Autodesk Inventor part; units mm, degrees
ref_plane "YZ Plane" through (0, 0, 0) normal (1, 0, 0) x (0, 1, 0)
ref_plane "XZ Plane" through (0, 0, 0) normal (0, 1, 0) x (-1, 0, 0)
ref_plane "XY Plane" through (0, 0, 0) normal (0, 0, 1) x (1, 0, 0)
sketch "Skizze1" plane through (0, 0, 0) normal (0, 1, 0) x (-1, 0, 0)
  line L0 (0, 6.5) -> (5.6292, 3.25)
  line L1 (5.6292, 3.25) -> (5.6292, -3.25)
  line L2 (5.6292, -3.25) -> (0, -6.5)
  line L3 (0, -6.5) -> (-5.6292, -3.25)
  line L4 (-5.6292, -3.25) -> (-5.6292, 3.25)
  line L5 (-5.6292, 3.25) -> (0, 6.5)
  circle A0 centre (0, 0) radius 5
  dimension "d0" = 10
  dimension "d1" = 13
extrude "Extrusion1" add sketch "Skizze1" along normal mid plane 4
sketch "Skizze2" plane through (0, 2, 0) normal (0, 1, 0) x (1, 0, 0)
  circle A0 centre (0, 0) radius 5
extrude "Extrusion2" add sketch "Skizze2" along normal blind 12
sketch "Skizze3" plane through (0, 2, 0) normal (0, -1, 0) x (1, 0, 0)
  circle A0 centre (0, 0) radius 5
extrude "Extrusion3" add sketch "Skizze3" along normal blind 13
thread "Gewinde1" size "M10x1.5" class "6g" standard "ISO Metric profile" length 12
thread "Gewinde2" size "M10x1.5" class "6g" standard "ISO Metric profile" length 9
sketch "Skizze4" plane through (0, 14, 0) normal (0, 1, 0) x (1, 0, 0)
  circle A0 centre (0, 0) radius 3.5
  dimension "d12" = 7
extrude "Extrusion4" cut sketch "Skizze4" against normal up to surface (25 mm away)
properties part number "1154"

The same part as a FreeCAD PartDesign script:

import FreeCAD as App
import Part
import Sketcher

V = App.Vector
Q = App.Units.Quantity

doc = App.newDocument("Part")
params = doc.addObject("Spreadsheet::Sheet", "Params")
for row, (alias, value) in enumerate([
    ("sketch1_diameter", "10 mm"),
    ("sketch1_height", "6.5 mm"),
    ("pad1_length", "4 mm"),
    ("sketch2_diameter", "10 mm"),
    ("pad2_length", "12 mm"),
    ("sketch3_diameter", "10 mm"),
    ("pad3_length", "13 mm"),
    ("sketch4_diameter", "7 mm"),
    ("pocket1_length", "25 mm"),
], start=1):
    params.set(f"A{row}", alias)
    params.set(f"B{row}", "=" + value)
    params.setAlias(f"B{row}", alias)

body = doc.addObject("PartDesign::Body", "Body")
body.AllowCompound = True

sketch1 = body.newObject("Sketcher::SketchObject", "Sketch")
sketch1.AttachmentSupport = (doc.getObject("XZ_Plane"), [""])
sketch1.MapMode = "FlatFace"
sketch1.addGeometry(Part.LineSegment(V(-6, 3, 0), V(0, 6, 0)), False)
sketch1.addGeometry(Part.LineSegment(V(0, 6, 0), V(6, 3, 0)), False)
sketch1.addGeometry(Part.LineSegment(V(6, 3, 0), V(6, -3, 0)), False)
sketch1.addGeometry(Part.LineSegment(V(6, -3, 0), V(0, -6, 0)), False)
sketch1.addGeometry(Part.LineSegment(V(0, -6, 0), V(-6, -3, 0)), False)
sketch1.addGeometry(Part.LineSegment(V(-6, -3, 0), V(-6, 3, 0)), False)
sketch1.addGeometry(Part.Circle(V(0, 0, 0), V(0, 0, 1), 5), False)
sketch1.addConstraint(Sketcher.Constraint("Coincident", 0, 2, 1, 1))
sketch1.addConstraint(Sketcher.Constraint("Coincident", 1, 2, 2, 1))
sketch1.addConstraint(Sketcher.Constraint("Coincident", 2, 2, 3, 1))
sketch1.addConstraint(Sketcher.Constraint("Coincident", 3, 2, 4, 1))
sketch1.addConstraint(Sketcher.Constraint("Coincident", 4, 2, 5, 1))
sketch1.addConstraint(Sketcher.Constraint("Coincident", 5, 2, 0, 1))
sketch1.addConstraint(Sketcher.Constraint("Vertical", 2))
sketch1.addConstraint(Sketcher.Constraint("Vertical", 5))
sketch1.addConstraint(Sketcher.Constraint("Coincident", 6, 3, -1, 1))
sketch1.addConstraint(Sketcher.Constraint("Symmetric", 0, 2, 3, 2, -1, 1))
sketch1.addConstraint(Sketcher.Constraint("Symmetric", 1, 2, 4, 2, -1, 1))
sketch1.addConstraint(Sketcher.Constraint("PointOnObject", 0, 2, -2))
sketch1.addConstraint(Sketcher.Constraint("Parallel", 0, 3))
sketch1.addConstraint(Sketcher.Constraint("Horizontal", 2, 2, 4, 2))
sketch1.addConstraint(Sketcher.Constraint("Diameter", 6, 10.0))
sketch1.addConstraint(Sketcher.Constraint("DistanceY", 3, 2, 0, 2, 13.0))
sketch1.addConstraint(Sketcher.Constraint("Angle", 0, Q("29.9998 deg")))
sketch1.addConstraint(Sketcher.Constraint("DistanceY", 2, 2, 2, 1, 6.5))
sketch1.setExpression("Constraints[14]", "Params.sketch1_diameter")
sketch1.setExpression("Constraints[17]", "Params.sketch1_height")
pad1 = body.newObject("PartDesign::Pad", "Pad")
pad1.Profile = sketch1
pad1.setExpression("Length", "Params.pad1_length")
pad1.Midplane = True

sketch2 = body.newObject("Sketcher::SketchObject", "Sketch001")
sketch2.AttachmentSupport = (doc.getObject("XZ_Plane"), [""])
sketch2.MapMode = "FlatFace"
sketch2.AttachmentOffset = App.Placement(V(0, 0, -2), App.Rotation())
sketch2.addGeometry(Part.Circle(V(0, 0, 0), V(0, 0, 1), 5), False)
sketch2.addConstraint(Sketcher.Constraint("Coincident", 0, 3, -1, 1))
sketch2.addConstraint(Sketcher.Constraint("Diameter", 0, 10.0))
sketch2.setExpression("Constraints[1]", "Params.sketch2_diameter")
pad2 = body.newObject("PartDesign::Pad", "Pad001")
pad2.Profile = sketch2
pad2.setExpression("Length", "Params.pad2_length")
pad2.Reversed = True

sketch3 = body.newObject("Sketcher::SketchObject", "Sketch002")
sketch3.AttachmentSupport = (doc.getObject("XZ_Plane"), [""])
sketch3.MapMode = "FlatFace"
sketch3.AttachmentOffset = App.Placement(V(0, 0, -2), App.Rotation())
sketch3.addGeometry(Part.Circle(V(0, 0, 0), V(0, 0, 1), 5), False)
sketch3.addConstraint(Sketcher.Constraint("Coincident", 0, 3, -1, 1))
sketch3.addConstraint(Sketcher.Constraint("Diameter", 0, 10.0))
sketch3.setExpression("Constraints[1]", "Params.sketch3_diameter")
pad3 = body.newObject("PartDesign::Pad", "Pad002")
pad3.Profile = sketch3
pad3.setExpression("Length", "Params.pad3_length")

sketch4 = body.newObject("Sketcher::SketchObject", "Sketch003")
sketch4.AttachmentSupport = (doc.getObject("XZ_Plane"), [""])
sketch4.MapMode = "FlatFace"
sketch4.AttachmentOffset = App.Placement(V(0, 0, -14), App.Rotation())
sketch4.addGeometry(Part.Circle(V(0, 0, 0), V(0, 0, 1), 3.5), False)
sketch4.addConstraint(Sketcher.Constraint("Coincident", 0, 3, -1, 1))
sketch4.addConstraint(Sketcher.Constraint("Diameter", 0, 7.0))
sketch4.setExpression("Constraints[1]", "Params.sketch4_diameter")
pocket1 = body.newObject("PartDesign::Pocket", "Pocket")
pocket1.Profile = sketch4
pocket1.setExpression("Length", "Params.pocket1_length")
pocket1.Reversed = True

doc.recompute()
